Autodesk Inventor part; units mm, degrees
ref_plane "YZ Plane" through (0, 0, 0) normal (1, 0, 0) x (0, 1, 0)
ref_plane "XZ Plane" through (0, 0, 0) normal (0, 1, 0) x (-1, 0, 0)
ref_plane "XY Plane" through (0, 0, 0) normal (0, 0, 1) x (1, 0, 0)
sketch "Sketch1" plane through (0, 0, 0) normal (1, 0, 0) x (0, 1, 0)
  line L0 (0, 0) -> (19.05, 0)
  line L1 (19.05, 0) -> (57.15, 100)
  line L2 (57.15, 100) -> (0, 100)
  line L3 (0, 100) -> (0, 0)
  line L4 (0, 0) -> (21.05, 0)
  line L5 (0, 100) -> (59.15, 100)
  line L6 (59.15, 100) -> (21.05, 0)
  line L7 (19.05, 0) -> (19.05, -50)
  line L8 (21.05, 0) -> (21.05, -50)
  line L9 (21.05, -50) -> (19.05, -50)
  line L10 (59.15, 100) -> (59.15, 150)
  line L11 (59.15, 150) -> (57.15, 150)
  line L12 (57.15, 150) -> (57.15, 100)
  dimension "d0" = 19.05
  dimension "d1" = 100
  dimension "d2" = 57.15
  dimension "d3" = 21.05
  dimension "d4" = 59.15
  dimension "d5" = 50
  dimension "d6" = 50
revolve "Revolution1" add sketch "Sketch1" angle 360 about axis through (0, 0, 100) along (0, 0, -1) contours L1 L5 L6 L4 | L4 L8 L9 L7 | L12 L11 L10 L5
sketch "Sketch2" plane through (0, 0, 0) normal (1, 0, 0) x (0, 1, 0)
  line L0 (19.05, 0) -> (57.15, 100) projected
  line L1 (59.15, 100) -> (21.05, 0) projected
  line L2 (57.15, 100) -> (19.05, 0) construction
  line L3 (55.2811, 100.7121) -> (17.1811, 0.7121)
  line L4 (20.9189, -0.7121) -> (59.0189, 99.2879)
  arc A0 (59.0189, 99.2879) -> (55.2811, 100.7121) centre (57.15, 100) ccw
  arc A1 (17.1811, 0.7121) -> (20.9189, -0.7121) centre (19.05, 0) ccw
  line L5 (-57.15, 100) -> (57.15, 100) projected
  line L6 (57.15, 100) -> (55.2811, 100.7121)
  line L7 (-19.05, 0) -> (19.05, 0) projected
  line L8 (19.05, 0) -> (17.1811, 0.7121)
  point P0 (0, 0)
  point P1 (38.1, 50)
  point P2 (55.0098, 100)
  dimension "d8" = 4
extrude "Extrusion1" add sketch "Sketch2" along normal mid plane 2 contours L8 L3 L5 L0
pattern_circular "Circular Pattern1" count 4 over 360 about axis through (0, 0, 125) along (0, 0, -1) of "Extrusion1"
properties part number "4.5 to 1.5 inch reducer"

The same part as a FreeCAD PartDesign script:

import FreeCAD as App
import Part
import Sketcher


def add_polygon(sketch, points):
    """Adds a closed chain of lines whose ends are joined by coincident constraints."""
    first, n = sketch.GeometryCount, len(points)
    for a, b in zip(points, points[1:] + points[:1]):
        sketch.addGeometry(Part.LineSegment(App.Vector(*a, 0), App.Vector(*b, 0)), False)
    for i in range(n):
        sketch.addConstraint(Sketcher.Constraint("Coincident", first + i, 2, first + (i + 1) % n, 1))

doc = App.newDocument("Part")
body = doc.addObject("PartDesign::Body", "Body")

# Sketch on YZ plane
sketch1 = body.newObject("Sketcher::SketchObject", "Sketch")
sketch1.AttachmentSupport = (doc.getObject("YZ_Plane"), [""])
sketch1.MapMode = "FlatFace"
add_polygon(sketch1, [(57.1, 100), (19.1, 0), (19.1, -50), (21.1, -50), (21.1, 0), (59.1, 100), (59.1, 150), (57.1, 150)])  # lines 0-7
sketch1.addConstraint([
    Sketcher.Constraint("Vertical", 1),
    Sketcher.Constraint("Horizontal", 2),
    Sketcher.Constraint("Vertical", 3),
    Sketcher.Constraint("Vertical", 5),
    Sketcher.Constraint("Horizontal", 6),
    Sketcher.Constraint("Vertical", 7),
    Sketcher.Constraint("PointOnObject", 0, 2, -1),
    Sketcher.Constraint("PointOnObject", 3, 2, -1),
    Sketcher.Constraint("Parallel", 0, 4),
    Sketcher.Constraint("Horizontal", 4, 2, 7, 2),
    Sketcher.Constraint("Equal", 3, 5),
    Sketcher.Constraint("DistanceY", 1, 2, 1, 1, 50.0),
    Sketcher.Constraint("DistanceY", -1, 1, 4, 2, 100.0),
    Sketcher.Constraint("DistanceX", 2, 1, 2, 2, 2.0),
    Sketcher.Constraint("DistanceX", -1, 1, 0, 2, 19.05),
    Sketcher.Constraint("DistanceX", -1, 1, 4, 2, 59.15),
])
revolution = body.newObject("PartDesign::Revolution", "Revolution")
revolution.Profile = sketch1
revolution.ReferenceAxis = (sketch1, ["V_Axis"])
revolution.Angle = 360

# Sketch on YZ plane
sketch2 = body.newObject("Sketcher::SketchObject", "Sketch001")
sketch2.AttachmentSupport = (doc.getObject("YZ_Plane"), [""])
sketch2.MapMode = "FlatFace"
add_polygon(sketch2, [(17.2, 0.7), (19.1, 0), (57.1, 100), (55, 100)])  # lines 0-3
sketch2.addConstraint([
    Sketcher.Constraint("Horizontal", 2),
    Sketcher.Constraint("PointOnObject", 0, 2, -1),
    Sketcher.Constraint("Perpendicular", 0, 1),
    Sketcher.Constraint("Parallel", 1, 3),
    Sketcher.Constraint("Distance", 0, 2.0),
    Sketcher.Constraint("DistanceY", -1, 1, 1, 2, 100.0),
    Sketcher.Constraint("DistanceX", 0, 2, 1, 2, 38.1),
    Sketcher.Constraint("DistanceX", -1, 1, 0, 2, 19.05),
])
pad1 = body.newObject("PartDesign::Pad", "Pad")
pad1.Profile = sketch2
pad1.Length = 2
pad1.Midplane = True
doc.recompute()

polarpattern = body.newObject("PartDesign::PolarPattern", "PolarPattern")
polarpattern.Originals = [pad1]
polarpattern.Axis = (doc.getObject("Z_Axis"), [""])
polarpattern.Angle = 360
polarpattern.Occurrences = 4
body.Tip = polarpattern

doc.recompute()
